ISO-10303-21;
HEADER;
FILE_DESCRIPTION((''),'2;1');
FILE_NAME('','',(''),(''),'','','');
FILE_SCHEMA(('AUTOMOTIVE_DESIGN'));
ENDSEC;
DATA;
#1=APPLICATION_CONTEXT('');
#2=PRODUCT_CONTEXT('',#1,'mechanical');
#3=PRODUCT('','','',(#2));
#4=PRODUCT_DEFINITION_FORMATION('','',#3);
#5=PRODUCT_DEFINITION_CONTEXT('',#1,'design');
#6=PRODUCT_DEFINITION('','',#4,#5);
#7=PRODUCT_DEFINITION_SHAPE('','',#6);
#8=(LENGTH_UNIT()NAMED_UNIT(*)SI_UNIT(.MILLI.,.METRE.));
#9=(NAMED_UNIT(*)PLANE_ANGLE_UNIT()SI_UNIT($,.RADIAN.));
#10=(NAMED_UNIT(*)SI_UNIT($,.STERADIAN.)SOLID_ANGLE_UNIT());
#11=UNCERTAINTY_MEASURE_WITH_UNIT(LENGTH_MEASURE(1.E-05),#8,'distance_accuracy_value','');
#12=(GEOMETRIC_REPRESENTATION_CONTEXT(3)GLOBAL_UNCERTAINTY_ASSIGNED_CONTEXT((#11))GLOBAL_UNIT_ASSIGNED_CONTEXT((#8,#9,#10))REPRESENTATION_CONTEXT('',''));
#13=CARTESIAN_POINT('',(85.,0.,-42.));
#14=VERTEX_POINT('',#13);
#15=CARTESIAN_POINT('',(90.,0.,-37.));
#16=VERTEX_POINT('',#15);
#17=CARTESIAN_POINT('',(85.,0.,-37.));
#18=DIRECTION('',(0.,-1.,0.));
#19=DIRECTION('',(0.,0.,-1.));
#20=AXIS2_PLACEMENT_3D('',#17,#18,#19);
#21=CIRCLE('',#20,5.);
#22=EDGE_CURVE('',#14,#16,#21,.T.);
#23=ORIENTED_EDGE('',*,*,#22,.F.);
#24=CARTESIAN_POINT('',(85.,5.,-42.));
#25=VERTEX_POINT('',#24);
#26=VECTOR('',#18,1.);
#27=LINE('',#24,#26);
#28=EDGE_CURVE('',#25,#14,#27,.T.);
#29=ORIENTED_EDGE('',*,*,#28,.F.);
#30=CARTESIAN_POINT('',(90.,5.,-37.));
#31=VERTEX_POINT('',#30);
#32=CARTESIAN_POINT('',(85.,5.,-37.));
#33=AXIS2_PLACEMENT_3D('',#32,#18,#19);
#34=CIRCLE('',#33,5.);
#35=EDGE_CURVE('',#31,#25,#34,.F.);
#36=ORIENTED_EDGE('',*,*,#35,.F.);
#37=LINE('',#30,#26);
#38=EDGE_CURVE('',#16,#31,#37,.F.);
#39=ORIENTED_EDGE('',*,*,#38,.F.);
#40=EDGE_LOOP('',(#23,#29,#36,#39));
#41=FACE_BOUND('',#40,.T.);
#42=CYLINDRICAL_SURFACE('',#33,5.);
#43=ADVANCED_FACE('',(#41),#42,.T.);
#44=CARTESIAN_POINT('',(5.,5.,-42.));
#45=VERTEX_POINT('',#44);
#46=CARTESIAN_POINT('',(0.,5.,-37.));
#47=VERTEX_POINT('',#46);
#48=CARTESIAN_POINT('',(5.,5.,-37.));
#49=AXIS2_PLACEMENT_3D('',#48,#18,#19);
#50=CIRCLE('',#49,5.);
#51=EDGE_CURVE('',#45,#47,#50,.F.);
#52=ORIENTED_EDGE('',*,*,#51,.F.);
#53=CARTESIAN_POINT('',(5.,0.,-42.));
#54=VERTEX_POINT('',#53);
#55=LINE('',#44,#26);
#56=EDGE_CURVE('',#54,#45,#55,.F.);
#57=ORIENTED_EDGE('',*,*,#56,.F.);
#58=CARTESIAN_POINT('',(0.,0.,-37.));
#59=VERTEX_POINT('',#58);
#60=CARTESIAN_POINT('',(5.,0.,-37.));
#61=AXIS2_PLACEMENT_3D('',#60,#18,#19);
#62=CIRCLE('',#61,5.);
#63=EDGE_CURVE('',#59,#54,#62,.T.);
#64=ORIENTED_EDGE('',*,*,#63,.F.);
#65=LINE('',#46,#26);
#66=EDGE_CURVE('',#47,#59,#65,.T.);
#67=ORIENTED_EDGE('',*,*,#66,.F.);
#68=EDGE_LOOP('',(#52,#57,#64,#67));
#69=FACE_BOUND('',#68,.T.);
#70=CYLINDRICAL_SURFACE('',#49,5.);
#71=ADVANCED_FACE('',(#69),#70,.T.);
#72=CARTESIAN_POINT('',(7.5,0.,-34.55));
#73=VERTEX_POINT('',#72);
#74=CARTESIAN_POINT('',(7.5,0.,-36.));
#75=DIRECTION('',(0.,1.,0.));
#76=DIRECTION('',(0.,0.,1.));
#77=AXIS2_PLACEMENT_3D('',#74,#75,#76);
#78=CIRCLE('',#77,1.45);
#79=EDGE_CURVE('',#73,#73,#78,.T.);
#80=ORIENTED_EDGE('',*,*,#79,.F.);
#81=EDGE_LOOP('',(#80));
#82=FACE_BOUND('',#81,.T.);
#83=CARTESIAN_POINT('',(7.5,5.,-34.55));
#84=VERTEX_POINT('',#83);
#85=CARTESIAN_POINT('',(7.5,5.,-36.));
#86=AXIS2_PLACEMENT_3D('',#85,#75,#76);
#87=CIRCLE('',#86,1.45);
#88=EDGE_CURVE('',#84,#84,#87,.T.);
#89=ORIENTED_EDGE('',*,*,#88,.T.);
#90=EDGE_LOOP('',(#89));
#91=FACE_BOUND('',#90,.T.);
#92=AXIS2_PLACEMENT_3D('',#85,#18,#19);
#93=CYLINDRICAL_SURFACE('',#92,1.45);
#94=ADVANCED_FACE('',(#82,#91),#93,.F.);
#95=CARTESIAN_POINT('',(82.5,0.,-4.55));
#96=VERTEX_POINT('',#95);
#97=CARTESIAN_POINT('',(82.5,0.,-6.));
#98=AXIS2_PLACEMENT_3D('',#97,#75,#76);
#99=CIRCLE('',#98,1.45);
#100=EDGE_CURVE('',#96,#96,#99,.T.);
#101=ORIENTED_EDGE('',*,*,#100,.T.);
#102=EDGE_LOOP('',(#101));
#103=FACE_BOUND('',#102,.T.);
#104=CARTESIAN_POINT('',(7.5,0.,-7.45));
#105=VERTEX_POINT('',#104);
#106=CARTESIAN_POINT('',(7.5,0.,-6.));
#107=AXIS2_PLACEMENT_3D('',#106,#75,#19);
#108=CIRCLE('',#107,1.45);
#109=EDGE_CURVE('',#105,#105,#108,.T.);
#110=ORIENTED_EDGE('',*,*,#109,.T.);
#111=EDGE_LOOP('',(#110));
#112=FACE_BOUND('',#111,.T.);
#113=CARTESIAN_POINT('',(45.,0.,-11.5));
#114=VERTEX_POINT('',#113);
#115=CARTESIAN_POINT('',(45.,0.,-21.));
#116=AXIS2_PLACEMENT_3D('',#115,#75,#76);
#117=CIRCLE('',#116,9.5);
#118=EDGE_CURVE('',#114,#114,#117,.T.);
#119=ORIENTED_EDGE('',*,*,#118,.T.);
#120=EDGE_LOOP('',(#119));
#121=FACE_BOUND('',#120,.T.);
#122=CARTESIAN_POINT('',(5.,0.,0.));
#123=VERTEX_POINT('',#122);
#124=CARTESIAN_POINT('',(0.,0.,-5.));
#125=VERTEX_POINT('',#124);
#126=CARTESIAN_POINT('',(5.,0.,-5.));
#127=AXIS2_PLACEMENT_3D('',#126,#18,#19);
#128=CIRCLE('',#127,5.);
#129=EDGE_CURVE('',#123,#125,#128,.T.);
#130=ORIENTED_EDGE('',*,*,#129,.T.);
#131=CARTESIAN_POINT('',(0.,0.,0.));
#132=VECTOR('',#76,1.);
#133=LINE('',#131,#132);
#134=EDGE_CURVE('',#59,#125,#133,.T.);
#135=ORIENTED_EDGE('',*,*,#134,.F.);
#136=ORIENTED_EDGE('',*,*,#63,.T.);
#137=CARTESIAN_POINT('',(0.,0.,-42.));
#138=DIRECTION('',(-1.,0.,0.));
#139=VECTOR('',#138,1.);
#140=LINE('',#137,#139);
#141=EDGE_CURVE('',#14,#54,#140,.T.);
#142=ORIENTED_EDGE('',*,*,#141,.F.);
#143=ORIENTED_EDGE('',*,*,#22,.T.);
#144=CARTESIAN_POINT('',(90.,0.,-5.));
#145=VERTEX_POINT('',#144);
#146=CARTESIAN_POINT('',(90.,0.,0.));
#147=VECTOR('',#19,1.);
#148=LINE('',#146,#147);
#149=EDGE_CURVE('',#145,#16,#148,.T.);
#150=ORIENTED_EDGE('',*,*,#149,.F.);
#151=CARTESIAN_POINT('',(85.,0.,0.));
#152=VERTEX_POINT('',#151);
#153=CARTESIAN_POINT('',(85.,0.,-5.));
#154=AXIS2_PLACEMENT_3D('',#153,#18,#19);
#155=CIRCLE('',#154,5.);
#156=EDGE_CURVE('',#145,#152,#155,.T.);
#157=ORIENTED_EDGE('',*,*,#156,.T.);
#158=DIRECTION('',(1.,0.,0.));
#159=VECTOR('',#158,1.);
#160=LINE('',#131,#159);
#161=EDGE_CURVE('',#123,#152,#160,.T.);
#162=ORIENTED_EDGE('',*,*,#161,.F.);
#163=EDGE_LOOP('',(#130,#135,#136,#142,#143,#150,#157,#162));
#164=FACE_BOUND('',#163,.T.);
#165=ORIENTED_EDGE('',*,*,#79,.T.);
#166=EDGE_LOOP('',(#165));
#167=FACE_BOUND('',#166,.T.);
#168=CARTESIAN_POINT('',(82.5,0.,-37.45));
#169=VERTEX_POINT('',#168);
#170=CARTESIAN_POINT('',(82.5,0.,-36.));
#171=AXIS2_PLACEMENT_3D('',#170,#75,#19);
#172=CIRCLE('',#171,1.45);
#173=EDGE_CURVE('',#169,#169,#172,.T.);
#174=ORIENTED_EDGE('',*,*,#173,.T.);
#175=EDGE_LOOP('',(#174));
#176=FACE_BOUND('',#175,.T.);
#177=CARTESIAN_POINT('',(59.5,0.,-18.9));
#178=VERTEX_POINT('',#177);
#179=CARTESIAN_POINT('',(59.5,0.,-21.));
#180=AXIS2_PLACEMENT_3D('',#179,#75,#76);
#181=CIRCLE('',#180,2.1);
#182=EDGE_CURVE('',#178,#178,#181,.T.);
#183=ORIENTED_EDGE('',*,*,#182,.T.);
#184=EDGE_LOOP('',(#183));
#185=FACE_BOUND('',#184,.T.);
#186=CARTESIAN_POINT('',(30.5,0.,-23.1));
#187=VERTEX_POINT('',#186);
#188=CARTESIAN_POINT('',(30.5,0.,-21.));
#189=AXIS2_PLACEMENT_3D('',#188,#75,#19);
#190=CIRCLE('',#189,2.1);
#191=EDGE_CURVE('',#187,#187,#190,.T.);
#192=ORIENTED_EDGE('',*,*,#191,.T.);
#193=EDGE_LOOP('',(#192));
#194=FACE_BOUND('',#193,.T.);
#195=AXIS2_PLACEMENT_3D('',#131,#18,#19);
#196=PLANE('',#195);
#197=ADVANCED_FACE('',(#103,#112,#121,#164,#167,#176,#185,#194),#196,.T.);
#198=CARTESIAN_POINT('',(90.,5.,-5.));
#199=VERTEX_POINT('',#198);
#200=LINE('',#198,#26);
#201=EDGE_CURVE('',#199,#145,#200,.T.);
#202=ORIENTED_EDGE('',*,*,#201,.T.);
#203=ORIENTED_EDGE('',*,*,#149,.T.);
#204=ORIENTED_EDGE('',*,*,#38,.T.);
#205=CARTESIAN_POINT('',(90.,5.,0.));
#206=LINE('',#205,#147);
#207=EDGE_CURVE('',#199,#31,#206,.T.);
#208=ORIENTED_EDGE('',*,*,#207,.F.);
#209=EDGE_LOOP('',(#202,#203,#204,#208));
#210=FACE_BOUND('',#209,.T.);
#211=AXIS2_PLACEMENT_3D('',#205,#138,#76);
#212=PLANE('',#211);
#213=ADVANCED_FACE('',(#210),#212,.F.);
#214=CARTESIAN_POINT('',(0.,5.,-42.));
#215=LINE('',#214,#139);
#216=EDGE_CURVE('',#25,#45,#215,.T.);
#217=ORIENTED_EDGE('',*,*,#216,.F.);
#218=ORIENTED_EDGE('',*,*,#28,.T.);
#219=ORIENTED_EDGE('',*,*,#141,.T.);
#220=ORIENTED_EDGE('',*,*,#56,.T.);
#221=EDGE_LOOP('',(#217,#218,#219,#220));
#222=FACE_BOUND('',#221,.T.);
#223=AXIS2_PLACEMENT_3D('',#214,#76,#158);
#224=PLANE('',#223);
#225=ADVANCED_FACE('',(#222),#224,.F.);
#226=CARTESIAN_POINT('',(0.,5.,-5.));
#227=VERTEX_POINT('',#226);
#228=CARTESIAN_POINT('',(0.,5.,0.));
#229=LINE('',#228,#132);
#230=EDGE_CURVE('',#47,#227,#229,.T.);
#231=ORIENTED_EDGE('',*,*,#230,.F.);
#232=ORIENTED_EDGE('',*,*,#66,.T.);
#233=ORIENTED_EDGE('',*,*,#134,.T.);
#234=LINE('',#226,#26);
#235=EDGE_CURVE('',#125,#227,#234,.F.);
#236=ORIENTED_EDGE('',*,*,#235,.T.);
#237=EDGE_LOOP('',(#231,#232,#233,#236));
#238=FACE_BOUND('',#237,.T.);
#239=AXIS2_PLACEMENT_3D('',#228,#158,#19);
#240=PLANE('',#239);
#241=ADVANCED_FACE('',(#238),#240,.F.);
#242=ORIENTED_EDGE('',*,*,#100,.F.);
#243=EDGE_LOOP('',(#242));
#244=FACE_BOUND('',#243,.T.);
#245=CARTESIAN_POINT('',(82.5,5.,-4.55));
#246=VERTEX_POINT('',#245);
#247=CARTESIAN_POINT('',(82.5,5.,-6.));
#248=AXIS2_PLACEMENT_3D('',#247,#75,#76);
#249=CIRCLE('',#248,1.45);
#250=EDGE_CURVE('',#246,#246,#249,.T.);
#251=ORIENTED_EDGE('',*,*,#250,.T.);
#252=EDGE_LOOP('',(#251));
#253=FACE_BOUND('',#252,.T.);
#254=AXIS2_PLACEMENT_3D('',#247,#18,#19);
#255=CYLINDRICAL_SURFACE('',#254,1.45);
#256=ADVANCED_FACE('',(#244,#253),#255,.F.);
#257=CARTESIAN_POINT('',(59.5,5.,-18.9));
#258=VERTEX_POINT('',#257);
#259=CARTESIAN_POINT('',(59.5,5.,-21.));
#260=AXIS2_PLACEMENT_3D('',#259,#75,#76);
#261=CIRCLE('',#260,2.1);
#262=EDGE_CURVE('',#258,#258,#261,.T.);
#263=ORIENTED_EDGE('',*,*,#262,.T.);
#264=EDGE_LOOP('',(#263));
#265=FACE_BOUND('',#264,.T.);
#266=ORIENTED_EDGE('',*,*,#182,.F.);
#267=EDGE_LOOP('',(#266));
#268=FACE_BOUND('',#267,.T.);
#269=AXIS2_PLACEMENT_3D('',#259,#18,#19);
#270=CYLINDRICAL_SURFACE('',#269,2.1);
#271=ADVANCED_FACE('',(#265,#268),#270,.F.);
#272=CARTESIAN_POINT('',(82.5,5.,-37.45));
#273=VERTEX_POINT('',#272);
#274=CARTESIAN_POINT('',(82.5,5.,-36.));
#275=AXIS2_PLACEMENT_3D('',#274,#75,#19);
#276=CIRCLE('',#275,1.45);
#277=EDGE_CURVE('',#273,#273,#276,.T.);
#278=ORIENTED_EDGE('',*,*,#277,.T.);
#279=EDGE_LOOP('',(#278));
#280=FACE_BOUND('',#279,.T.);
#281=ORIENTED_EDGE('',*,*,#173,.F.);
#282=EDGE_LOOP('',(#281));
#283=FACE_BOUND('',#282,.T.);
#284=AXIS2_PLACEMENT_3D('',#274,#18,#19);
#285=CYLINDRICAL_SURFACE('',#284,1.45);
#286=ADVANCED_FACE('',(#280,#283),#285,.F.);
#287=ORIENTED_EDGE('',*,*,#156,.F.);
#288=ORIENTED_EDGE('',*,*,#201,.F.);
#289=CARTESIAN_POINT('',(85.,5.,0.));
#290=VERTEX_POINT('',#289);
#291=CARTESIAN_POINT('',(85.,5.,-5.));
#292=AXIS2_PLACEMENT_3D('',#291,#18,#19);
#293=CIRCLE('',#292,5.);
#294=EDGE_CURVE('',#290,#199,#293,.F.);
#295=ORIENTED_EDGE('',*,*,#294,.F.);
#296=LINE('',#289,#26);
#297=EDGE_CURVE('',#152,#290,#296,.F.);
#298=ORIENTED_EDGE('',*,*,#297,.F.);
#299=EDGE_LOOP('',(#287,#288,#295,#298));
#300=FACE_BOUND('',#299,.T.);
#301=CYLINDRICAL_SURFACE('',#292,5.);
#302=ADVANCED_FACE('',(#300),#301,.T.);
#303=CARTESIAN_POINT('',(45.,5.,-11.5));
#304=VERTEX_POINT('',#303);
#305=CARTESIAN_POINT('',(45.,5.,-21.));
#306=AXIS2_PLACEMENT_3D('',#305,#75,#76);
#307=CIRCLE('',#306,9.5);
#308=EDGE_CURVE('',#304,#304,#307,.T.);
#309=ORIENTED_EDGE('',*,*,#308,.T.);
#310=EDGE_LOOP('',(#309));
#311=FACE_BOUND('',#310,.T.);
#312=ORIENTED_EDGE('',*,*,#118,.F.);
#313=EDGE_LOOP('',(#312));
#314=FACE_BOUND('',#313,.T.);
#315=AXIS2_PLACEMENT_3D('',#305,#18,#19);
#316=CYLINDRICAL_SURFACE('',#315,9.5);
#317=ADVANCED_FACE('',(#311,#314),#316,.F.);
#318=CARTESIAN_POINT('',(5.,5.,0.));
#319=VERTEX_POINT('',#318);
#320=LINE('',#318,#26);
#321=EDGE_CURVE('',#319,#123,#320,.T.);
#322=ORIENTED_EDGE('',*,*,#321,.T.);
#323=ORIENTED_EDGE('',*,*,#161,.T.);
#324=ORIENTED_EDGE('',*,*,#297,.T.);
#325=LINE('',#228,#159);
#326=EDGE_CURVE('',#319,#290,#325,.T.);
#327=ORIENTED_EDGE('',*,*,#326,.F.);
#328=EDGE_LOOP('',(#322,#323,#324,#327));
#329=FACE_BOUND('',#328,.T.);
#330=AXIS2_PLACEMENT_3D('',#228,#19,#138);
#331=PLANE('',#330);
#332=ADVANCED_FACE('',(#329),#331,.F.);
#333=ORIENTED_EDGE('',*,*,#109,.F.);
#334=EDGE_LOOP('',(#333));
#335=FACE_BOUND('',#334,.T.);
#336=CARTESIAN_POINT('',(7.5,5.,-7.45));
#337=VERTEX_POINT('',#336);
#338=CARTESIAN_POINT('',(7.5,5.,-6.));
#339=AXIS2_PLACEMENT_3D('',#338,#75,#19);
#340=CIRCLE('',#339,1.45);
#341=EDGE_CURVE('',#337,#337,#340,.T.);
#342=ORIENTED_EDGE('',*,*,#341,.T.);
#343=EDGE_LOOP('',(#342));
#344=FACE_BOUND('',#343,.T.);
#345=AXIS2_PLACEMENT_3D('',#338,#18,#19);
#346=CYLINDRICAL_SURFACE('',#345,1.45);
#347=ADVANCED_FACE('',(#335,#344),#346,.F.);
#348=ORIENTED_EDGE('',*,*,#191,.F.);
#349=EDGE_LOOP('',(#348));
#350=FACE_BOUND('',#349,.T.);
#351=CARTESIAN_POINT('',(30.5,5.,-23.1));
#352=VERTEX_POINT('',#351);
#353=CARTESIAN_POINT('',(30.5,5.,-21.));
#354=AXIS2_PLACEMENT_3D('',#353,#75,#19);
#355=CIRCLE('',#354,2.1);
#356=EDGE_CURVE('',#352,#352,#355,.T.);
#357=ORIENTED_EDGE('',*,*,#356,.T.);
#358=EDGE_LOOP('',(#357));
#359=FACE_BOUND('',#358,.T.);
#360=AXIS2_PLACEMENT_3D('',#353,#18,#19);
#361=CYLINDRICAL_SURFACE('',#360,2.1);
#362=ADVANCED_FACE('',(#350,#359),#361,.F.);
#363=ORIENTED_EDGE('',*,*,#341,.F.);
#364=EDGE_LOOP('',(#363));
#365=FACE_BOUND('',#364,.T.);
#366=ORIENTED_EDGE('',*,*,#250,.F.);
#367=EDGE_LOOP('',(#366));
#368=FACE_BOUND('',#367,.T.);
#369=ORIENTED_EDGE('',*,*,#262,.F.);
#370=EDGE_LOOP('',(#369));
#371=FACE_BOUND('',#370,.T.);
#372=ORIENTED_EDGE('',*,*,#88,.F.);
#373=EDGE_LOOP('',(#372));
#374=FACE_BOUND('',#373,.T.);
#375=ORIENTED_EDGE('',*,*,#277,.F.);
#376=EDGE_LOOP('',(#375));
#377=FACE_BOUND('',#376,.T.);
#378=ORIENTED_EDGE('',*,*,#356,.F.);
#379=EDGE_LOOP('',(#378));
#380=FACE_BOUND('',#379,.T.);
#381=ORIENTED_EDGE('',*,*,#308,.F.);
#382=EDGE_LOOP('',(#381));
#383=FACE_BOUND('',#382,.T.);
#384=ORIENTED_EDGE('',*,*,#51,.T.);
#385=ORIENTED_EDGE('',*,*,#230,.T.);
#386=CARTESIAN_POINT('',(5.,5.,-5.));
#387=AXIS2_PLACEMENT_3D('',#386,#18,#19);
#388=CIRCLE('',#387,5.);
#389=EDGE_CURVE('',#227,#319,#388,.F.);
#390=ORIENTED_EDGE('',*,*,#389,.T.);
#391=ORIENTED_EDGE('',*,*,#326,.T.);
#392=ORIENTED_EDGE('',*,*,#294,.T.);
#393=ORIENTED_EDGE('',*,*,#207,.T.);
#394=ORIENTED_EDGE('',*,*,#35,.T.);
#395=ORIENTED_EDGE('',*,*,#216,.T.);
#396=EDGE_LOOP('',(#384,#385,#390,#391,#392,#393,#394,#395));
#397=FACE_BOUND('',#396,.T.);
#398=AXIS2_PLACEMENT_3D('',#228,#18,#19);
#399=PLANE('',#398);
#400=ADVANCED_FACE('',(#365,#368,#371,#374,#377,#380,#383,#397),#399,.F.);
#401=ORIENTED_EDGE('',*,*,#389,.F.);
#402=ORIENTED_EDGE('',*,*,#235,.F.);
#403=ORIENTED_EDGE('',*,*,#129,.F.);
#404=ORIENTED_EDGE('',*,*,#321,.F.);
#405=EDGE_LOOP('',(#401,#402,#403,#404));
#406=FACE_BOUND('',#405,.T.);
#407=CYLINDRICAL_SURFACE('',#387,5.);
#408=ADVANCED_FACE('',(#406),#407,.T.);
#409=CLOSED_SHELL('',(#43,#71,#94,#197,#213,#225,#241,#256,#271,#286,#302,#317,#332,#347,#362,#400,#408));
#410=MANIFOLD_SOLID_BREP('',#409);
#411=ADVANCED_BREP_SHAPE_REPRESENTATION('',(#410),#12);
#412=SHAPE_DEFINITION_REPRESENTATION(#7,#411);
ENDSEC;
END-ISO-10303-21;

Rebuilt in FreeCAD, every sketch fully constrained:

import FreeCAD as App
import Part
import Sketcher
Q = App.Units.Quantity


def edges_at(feature, points):
    """Names of the edges that pass closest to the given points."""
    edges = feature.Shape.Edges
    near = lambda p: min(range(len(edges)), key=lambda i: edges[i].distToShape(Part.Vertex(*p))[0])
    return sorted({f"Edge{near(p) + 1}" for p in points})


def add_polygon(sketch, points):
    """Adds a closed chain of lines whose ends are joined by coincident constraints."""
    first, n = sketch.GeometryCount, len(points)
    for a, b in zip(points, points[1:] + points[:1]):
        sketch.addGeometry(Part.LineSegment(App.Vector(*a, 0), App.Vector(*b, 0)), False)
    for i in range(n):
        sketch.addConstraint(Sketcher.Constraint("Coincident", first + i, 2, first + (i + 1) % n, 1))

doc = App.newDocument("Part")
body = doc.addObject("PartDesign::Body", "Body")

# Sketch on XZ plane
sketch1 = doc.addObject("Sketcher::SketchObject", "Sketch")
body.addObject(sketch1)
sketch1.AttachmentSupport = (doc.XZ_Plane, [""])
sketch1.MapMode = "FlatFace"
add_polygon(sketch1, [(0, -42), (0, 0), (90, 0), (90, -42)])  # lines 0-3
sketch1.addGeometry(Part.Circle(App.Vector(7.5, -6, 0), App.Vector(0, 0, 1), 1.4), False)  # 4
sketch1.addGeometry(Part.Circle(App.Vector(82.5, -6, 0), App.Vector(0, 0, 1), 1.4), False)  # 5
sketch1.addGeometry(Part.Circle(App.Vector(30.5, -21, 0), App.Vector(0, 0, 1), 2.1), False)  # 6
sketch1.addGeometry(Part.Circle(App.Vector(7.5, -36, 0), App.Vector(0, 0, 1), 1.4), False)  # 7
sketch1.addGeometry(Part.Circle(App.Vector(45, -21, 0), App.Vector(0, 0, 1), 9.5), False)  # 8
sketch1.addGeometry(Part.Circle(App.Vector(59.5, -21, 0), App.Vector(0, 0, 1), 2.1), False)  # 9
sketch1.addGeometry(Part.Circle(App.Vector(82.5, -36, 0), App.Vector(0, 0, 1), 1.4), False)  # 10
sketch1.addConstraint([
    Sketcher.Constraint("Vertical", 0),
    Sketcher.Constraint("Horizontal", 1),
    Sketcher.Constraint("Vertical", 2),
    Sketcher.Constraint("Horizontal", 3),
    Sketcher.Constraint("Coincident", 0, 2, -1, 1),
    Sketcher.Constraint("Equal", 4, 5),
    Sketcher.Constraint("Equal", 5, 7),
    Sketcher.Constraint("Equal", 6, 9),
    Sketcher.Constraint("Equal", 7, 10),
    Sketcher.Constraint("Horizontal", 4, 3, 5, 3),
    Sketcher.Constraint("Horizontal", 6, 3, 8, 3),
    Sketcher.Constraint("Horizontal", 8, 3, 9, 3),
    Sketcher.Constraint("Horizontal", 7, 3, 10, 3),
    Sketcher.Constraint("Vertical", 4, 3, 7, 3),
    Sketcher.Constraint("Vertical", 5, 3, 10, 3),
    Sketcher.Constraint("Diameter", 8, Q("19 mm")),
    Sketcher.Constraint("Diameter", 4, Q("2.9 mm")),
    Sketcher.Constraint("Diameter", 6, Q("4.2 mm")),
    Sketcher.Constraint("DistanceX", 1, 1, 1, 2, Q("90 mm")),
    Sketcher.Constraint("DistanceY", 0, 1, 0, 2, Q("42 mm")),
    Sketcher.Constraint("DistanceY", 4, 3, -1, 1, Q("6 mm")),
    Sketcher.Constraint("DistanceY", 6, 3, -1, 1, Q("21 mm")),
    Sketcher.Constraint("DistanceY", 7, 3, -1, 1, Q("36 mm")),
    Sketcher.Constraint("DistanceX", -1, 1, 8, 3, Q("45 mm")),
    Sketcher.Constraint("DistanceX", 4, 3, 5, 3, Q("75 mm")),
    Sketcher.Constraint("DistanceX", 4, 3, 6, 3, Q("23 mm")),
    Sketcher.Constraint("DistanceX", 9, 3, 5, 3, Q("23 mm")),
    Sketcher.Constraint("DistanceX", -1, 1, 4, 3, Q("7.5 mm")),
])
pad1 = doc.addObject("PartDesign::Pad", "Pad")
body.addObject(pad1)
pad1.Profile = sketch1
pad1.Length = 5
pad1.Reversed = True
doc.recompute()

fillet = doc.addObject("PartDesign::Fillet", "Fillet")
body.addObject(fillet)
fillet.Base = (pad1, edges_at(pad1, [
    (0, 2.5, -42),
    (90, 2.5, -42),
    (90, 2.5, 0),
    (0, 2.5, 0),
]))
fillet.Radius = 5

doc.recompute()
